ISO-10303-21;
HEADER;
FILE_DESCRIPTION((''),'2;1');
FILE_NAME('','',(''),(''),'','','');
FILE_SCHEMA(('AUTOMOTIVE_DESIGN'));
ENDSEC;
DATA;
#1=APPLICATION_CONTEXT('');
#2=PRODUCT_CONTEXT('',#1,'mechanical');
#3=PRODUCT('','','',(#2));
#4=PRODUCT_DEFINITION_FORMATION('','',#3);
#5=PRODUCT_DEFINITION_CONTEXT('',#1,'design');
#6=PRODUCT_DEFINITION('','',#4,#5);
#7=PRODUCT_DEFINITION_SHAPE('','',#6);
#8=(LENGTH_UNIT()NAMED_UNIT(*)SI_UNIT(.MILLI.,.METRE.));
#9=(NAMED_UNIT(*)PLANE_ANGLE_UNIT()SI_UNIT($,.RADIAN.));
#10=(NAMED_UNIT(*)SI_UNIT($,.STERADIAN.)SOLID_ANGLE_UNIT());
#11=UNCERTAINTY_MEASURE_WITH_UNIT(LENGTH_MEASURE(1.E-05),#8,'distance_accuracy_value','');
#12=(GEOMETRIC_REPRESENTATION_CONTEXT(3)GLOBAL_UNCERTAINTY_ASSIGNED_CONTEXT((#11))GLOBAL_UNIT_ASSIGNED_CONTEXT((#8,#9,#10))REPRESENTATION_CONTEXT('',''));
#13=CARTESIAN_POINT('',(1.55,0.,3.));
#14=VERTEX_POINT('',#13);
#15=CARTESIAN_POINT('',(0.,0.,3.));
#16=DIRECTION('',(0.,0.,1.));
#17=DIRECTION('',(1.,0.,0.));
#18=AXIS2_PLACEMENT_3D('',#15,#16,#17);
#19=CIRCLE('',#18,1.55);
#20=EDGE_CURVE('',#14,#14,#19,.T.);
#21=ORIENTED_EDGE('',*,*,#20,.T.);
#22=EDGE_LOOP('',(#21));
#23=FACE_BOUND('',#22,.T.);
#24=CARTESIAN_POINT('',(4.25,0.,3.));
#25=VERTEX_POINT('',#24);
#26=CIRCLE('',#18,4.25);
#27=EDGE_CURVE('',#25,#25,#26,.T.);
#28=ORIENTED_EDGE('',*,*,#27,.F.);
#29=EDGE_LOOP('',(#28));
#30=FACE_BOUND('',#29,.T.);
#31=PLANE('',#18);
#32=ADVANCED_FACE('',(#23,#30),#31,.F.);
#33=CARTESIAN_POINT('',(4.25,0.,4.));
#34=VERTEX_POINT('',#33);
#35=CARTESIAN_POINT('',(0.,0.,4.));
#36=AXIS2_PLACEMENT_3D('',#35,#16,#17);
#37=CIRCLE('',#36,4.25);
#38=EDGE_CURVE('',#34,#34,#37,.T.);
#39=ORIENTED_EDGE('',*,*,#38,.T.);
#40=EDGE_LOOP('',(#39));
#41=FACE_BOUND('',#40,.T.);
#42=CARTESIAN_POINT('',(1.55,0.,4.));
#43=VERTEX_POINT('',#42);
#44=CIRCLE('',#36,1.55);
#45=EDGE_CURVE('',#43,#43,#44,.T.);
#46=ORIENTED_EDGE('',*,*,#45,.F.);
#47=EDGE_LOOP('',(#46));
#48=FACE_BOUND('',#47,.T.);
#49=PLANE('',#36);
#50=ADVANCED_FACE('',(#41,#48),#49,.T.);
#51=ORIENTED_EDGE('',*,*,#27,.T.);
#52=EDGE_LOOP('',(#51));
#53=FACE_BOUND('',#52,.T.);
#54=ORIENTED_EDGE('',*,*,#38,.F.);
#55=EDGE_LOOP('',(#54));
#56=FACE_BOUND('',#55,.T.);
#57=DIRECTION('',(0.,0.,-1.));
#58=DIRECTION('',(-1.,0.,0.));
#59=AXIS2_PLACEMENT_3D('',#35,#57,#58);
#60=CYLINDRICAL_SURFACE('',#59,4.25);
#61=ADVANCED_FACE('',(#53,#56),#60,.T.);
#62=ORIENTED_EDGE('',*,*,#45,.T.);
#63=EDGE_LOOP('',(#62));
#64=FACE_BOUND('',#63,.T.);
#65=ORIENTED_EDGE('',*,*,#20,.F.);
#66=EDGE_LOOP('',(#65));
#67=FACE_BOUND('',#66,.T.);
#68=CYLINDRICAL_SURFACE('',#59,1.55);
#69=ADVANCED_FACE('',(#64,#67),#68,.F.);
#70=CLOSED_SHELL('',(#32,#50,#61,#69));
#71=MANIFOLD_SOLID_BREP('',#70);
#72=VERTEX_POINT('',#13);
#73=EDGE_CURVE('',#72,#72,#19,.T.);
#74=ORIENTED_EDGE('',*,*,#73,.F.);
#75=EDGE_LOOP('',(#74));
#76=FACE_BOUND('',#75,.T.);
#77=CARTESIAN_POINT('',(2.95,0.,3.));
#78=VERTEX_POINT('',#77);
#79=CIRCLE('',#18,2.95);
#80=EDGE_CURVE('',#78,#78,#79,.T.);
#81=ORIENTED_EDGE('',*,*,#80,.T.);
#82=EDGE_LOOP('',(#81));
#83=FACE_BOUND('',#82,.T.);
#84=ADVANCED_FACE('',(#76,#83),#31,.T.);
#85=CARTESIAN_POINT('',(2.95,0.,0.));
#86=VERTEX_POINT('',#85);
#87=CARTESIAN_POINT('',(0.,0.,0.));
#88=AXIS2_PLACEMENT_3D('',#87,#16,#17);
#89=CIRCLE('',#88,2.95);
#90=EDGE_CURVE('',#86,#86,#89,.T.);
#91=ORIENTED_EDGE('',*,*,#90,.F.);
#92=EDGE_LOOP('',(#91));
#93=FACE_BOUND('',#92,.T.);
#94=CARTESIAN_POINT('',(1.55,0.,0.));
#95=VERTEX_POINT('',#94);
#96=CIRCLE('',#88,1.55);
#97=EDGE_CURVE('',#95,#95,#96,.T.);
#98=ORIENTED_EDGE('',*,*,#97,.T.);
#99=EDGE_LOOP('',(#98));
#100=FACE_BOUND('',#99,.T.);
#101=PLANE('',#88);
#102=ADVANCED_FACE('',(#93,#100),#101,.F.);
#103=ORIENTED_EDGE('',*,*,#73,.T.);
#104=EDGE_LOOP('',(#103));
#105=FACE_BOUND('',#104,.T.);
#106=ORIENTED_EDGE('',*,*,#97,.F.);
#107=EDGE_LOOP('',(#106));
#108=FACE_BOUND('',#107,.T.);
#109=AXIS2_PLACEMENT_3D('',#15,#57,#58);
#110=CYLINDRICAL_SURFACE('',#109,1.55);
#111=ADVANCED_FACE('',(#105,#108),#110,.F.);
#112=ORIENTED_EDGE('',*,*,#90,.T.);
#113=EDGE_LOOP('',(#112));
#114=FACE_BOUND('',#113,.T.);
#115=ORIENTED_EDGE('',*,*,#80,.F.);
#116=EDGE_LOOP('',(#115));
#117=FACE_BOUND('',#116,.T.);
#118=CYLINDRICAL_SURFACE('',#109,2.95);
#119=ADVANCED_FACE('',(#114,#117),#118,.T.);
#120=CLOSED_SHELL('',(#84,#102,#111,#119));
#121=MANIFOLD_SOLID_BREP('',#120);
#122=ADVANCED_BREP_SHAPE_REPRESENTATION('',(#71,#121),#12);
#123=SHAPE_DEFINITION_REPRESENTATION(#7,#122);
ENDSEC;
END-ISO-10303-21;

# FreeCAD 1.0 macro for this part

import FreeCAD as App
import Part
import Sketcher

V = App.Vector
Q = App.Units.Quantity

doc = App.newDocument("Part")
body = doc.addObject("PartDesign::Body", "Body")

sketch1 = body.newObject("Sketcher::SketchObject", "Sketch")
sketch1.AttachmentSupport = (doc.getObject("XY_Plane"), [""])
sketch1.MapMode = "FlatFace"
sketch1.addGeometry(Part.Circle(V(0, 0, 0), V(0, 0, 1), 3), False)
sketch1.addGeometry(Part.Circle(V(0, 0, 0), V(0, 0, 1), 1.6), False)
sketch1.addConstraint(Sketcher.Constraint("Coincident", 0, 3, -1, 1))
sketch1.addConstraint(Sketcher.Constraint("Coincident", 1, 3, -1, 1))
sketch1.addConstraint(Sketcher.Constraint("Diameter", 0, Q("5.9 mm")))
sketch1.addConstraint(Sketcher.Constraint("Diameter", 1, Q("3.1 mm")))
pad1 = body.newObject("PartDesign::Pad", "Pad")
pad1.Profile = sketch1
pad1.Length = 3
body2 = doc.addObject("PartDesign::Body", "Body001")

sketch2 = body2.newObject("Sketcher::SketchObject", "Sketch001")
sketch2.AttachmentSupport = (doc.getObject("XY_Plane001"), [""])
sketch2.MapMode = "FlatFace"
sketch2.AttachmentOffset = App.Placement(V(0, 0, 3), App.Rotation())
sketch2.addGeometry(Part.Circle(V(0, 0, 0), V(0, 0, 1), 4.2), False)
sketch2.addGeometry(Part.Circle(V(0, 0, 0), V(0, 0, 1), 1.6), False)
sketch2.addConstraint(Sketcher.Constraint("Coincident", 0, 3, -1, 1))
sketch2.addConstraint(Sketcher.Constraint("Coincident", 1, 3, -1, 1))
sketch2.addConstraint(Sketcher.Constraint("Diameter", 0, Q("8.5 mm")))
sketch2.addConstraint(Sketcher.Constraint("Diameter", 1, Q("3.1 mm")))
pad2 = body2.newObject("PartDesign::Pad", "Pad001")
pad2.Profile = sketch2
pad2.Length = 1

doc.recompute()
